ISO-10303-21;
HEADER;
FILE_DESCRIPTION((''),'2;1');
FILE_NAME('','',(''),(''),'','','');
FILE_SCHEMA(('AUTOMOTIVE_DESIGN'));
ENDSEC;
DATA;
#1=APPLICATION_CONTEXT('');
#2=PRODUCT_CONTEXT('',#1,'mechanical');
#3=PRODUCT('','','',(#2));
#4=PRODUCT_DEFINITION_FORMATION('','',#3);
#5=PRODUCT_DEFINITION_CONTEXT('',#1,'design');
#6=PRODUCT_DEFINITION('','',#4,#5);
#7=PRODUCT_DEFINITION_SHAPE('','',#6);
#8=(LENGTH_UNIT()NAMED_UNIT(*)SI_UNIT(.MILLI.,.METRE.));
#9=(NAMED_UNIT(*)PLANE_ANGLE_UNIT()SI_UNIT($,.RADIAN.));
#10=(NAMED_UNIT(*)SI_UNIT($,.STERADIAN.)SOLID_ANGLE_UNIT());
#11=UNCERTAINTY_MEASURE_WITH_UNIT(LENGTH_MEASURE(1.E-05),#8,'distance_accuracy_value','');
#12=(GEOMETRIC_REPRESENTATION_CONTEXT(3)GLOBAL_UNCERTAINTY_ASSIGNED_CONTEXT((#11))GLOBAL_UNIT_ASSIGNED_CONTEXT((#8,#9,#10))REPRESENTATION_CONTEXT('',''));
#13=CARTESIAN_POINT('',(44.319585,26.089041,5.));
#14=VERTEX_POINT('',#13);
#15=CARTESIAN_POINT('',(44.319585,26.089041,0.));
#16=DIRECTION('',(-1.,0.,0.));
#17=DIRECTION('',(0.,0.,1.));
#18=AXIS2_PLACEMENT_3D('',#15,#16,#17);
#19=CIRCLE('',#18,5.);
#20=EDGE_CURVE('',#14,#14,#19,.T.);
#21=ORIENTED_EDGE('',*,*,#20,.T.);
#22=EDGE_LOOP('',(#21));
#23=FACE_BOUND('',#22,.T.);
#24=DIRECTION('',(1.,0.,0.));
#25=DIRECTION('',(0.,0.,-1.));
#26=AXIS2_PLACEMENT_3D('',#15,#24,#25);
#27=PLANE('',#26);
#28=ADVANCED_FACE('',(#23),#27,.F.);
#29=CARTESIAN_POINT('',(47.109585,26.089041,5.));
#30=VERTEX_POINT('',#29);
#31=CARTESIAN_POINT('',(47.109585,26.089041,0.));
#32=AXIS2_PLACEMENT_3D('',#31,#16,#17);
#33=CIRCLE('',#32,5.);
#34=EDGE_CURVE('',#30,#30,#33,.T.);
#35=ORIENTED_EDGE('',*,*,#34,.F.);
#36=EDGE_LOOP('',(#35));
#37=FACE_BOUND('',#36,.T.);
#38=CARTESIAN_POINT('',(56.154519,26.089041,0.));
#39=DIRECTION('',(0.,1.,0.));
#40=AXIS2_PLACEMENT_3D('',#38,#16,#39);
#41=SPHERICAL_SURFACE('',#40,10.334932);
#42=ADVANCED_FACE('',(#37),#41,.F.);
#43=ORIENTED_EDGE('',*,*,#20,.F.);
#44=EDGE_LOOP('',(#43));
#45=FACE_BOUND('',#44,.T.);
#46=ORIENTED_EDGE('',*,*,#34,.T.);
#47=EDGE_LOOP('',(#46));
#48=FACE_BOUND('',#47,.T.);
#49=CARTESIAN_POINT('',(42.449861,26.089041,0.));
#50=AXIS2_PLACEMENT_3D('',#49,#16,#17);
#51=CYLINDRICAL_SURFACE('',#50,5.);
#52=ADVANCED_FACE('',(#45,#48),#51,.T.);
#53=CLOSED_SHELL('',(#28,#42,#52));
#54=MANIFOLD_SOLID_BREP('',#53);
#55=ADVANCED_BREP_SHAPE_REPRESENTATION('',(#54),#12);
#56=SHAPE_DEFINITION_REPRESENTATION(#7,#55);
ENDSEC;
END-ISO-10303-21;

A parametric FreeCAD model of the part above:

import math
import FreeCAD as App
import Part
import Sketcher
from FreeCAD import Vector

doc = App.newDocument("Part")
params = doc.addObject("Spreadsheet::Sheet", "Params")
for row, (alias, value) in enumerate([
    ("sketch1_height", "5 mm"),
    ("sketch1_width", "1.500001 mm"),
    ("sketch1_width2", "2.79 mm"),
    ("revolution_angle", "360 deg"),
], start=1):
    params.set(f"A{row}", alias)
    params.set(f"B{row}", "=" + value)
    params.setAlias(f"B{row}", alias)

body = doc.addObject("PartDesign::Body", "Body")

sketch1 = doc.addObject("Sketcher::SketchObject", "Sketch")
body.addObject(sketch1)
sketch1.AttachmentSupport = (doc.XY_Plane, [""])
sketch1.MapMode = "FlatFace"
sketch1.addGeometry([
    Part.LineSegment(Vector(44.3, 31.1, 0), Vector(44.3, 26.1, 0)),
    Part.LineSegment(Vector(44.3, 26.1, 0), Vector(45.8, 26.1, 0)),
    Part.ArcOfCircle(Part.Circle(Vector(56.2, 26.1, 0), Vector(0, 0, 1), 10.3), math.radians(151), math.radians(180)),
    Part.LineSegment(Vector(47.1, 31.1, 0), Vector(44.3, 31.1, 0)),
], False)
sketch1.addGeometry(Part.LineSegment(Vector(44.3, 26.1, 0), Vector(56.2, 26.1, 0)), True)
sketch1.addConstraint([
    Sketcher.Constraint("Coincident", 0, 2, 1, 1),
    Sketcher.Constraint("Coincident", 1, 2, 2, 2),
    Sketcher.Constraint("Coincident", 2, 1, 3, 1),
    Sketcher.Constraint("Coincident", 3, 2, 0, 1),
    Sketcher.Constraint("Vertical", 0),
    Sketcher.Constraint("Horizontal", 1),
    Sketcher.Constraint("Horizontal", 3),
    Sketcher.Constraint("Horizontal", 4),
    Sketcher.Constraint("Coincident", 4, 1, 0, 2),
    Sketcher.Constraint("Coincident", 4, 2, 2, 3),
    Sketcher.Constraint("DistanceY", 0, 2, 0, 1, 5.0),
    Sketcher.Constraint("DistanceX", 1, 1, 1, 2, 1.500001),
    Sketcher.Constraint("DistanceX", 3, 2, 3, 1, 2.79),
    Sketcher.Constraint("DistanceX", -1, 1, 2, 3, 56.154519),
    Sketcher.Constraint("DistanceY", -1, 1, 2, 3, 26.089041),
])
sketch1.setExpression("Constraints[10]", "Params.sketch1_height")
sketch1.setExpression("Constraints[11]", "Params.sketch1_width")
sketch1.setExpression("Constraints[12]", "Params.sketch1_width2")
revolution = doc.addObject("PartDesign::Revolution", "Revolution")
body.addObject(revolution)
revolution.Profile = sketch1
revolution.ReferenceAxis = (sketch1, ["Axis0"])
revolution.setExpression("Angle", "Params.revolution_angle")

doc.recompute()
